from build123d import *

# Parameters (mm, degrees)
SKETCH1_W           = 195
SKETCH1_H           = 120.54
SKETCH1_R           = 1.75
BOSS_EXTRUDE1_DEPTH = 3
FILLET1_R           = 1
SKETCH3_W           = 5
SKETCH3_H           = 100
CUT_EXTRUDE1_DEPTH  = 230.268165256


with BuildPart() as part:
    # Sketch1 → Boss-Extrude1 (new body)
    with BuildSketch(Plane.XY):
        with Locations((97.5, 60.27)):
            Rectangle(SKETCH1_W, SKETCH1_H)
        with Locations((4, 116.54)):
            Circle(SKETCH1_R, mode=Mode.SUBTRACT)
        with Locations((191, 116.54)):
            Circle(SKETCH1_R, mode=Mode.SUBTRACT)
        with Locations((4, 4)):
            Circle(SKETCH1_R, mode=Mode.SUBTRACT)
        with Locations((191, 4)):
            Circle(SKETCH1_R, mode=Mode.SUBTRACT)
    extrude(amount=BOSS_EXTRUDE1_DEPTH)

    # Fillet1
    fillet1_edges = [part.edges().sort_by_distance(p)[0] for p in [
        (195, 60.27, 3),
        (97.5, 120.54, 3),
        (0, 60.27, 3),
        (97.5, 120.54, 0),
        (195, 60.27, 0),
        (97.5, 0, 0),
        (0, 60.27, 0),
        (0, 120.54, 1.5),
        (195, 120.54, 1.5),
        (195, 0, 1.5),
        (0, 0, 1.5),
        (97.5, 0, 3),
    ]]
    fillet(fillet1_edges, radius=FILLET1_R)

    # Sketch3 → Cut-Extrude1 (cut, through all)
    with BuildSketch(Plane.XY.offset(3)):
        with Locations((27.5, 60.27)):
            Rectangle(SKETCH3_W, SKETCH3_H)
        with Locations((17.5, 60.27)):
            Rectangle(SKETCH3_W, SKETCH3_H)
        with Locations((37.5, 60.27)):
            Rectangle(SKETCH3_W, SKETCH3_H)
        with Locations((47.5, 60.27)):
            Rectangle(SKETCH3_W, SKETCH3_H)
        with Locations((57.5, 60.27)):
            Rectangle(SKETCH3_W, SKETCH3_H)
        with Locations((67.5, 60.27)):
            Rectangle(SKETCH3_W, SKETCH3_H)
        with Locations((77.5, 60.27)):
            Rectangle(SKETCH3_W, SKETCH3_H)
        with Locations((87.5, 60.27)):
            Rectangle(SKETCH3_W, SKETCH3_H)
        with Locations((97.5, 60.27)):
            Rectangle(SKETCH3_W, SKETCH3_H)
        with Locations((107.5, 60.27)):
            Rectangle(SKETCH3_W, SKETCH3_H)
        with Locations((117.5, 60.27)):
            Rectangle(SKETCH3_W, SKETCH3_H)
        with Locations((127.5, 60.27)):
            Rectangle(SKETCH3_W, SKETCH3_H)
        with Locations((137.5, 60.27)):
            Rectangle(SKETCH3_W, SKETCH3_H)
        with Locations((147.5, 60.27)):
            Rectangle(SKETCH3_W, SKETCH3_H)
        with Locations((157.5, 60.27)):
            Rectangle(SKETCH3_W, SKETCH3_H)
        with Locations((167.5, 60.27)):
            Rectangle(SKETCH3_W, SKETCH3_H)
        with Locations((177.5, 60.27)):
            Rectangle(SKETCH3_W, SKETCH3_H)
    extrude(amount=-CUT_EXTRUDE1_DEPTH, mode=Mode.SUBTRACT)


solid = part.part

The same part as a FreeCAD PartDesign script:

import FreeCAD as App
import Part
import Sketcher

V = App.Vector


def edges_at(feature, points):
    """Names of the edges that pass closest to the given points."""
    edges = feature.Shape.Edges
    near = lambda p: min(range(len(edges)), key=lambda i: edges[i].distToShape(Part.Vertex(*p))[0])
    return sorted({f"Edge{near(p) + 1}" for p in points})


def add_polygon(sketch, points):
    """Adds a closed chain of lines whose ends are joined by coincident constraints."""
    first, n = sketch.GeometryCount, len(points)
    for a, b in zip(points, points[1:] + points[:1]):
        sketch.addGeometry(Part.LineSegment(App.Vector(*a, 0), App.Vector(*b, 0)), False)
    for i in range(n):
        sketch.addConstraint(Sketcher.Constraint("Coincident", first + i, 2, first + (i + 1) % n, 1))

doc = App.newDocument("Part")
body = doc.addObject("PartDesign::Body", "Body")

sketch1 = body.newObject("Sketcher::SketchObject", "Sketch")
sketch1.AttachmentSupport = (doc.getObject("XY_Plane"), [""])
sketch1.MapMode = "FlatFace"
add_polygon(sketch1, [(0, 120.5), (0, 0), (195, 0), (195, 120.5)])
sketch1.addGeometry(Part.Circle(V(4, 4, 0), V(0, 0, 1), 1.8), False)
sketch1.addGeometry(Part.Circle(V(191, 4, 0), V(0, 0, 1), 1.8), False)
sketch1.addGeometry(Part.Circle(V(4, 116.5, 0), V(0, 0, 1), 1.8), False)
sketch1.addGeometry(Part.Circle(V(191, 116.5, 0), V(0, 0, 1), 1.8), False)
sketch1.addConstraint(Sketcher.Constraint("Vertical", 0))
sketch1.addConstraint(Sketcher.Constraint("Horizontal", 1))
sketch1.addConstraint(Sketcher.Constraint("Vertical", 2))
sketch1.addConstraint(Sketcher.Constraint("Horizontal", 3))
sketch1.addConstraint(Sketcher.Constraint("Coincident", 0, 2, -1, 1))
sketch1.addConstraint(Sketcher.Constraint("Equal", 4, 5))
sketch1.addConstraint(Sketcher.Constraint("Equal", 5, 6))
sketch1.addConstraint(Sketcher.Constraint("Equal", 6, 7))
sketch1.addConstraint(Sketcher.Constraint("Horizontal", 4, 3, 5, 3))
sketch1.addConstraint(Sketcher.Constraint("Horizontal", 6, 3, 7, 3))
sketch1.addConstraint(Sketcher.Constraint("Vertical", 4, 3, 6, 3))
sketch1.addConstraint(Sketcher.Constraint("Vertical", 5, 3, 7, 3))
sketch1.addConstraint(Sketcher.Constraint("Diameter", 4, 3.5))
sketch1.addConstraint(Sketcher.Constraint("DistanceX", 1, 1, 1, 2, 195.0))
sketch1.addConstraint(Sketcher.Constraint("DistanceX", -1, 1, 4, 3, 4.0))
sketch1.addConstraint(Sketcher.Constraint("DistanceY", -1, 1, 4, 3, 4.0))
sketch1.addConstraint(Sketcher.Constraint("DistanceX", -1, 1, 5, 3, 191.0))
sketch1.addConstraint(Sketcher.Constraint("DistanceY", 7, 3, 2, 2, 4.0))
sketch1.addConstraint(Sketcher.Constraint("DistanceY", 0, 2, 0, 1, 120.54))
pad1 = body.newObject("PartDesign::Pad", "Pad")
pad1.Profile = sketch1
pad1.Length = 3
doc.recompute()

fillet = body.newObject("PartDesign::Fillet", "Fillet")
fillet.Base = (pad1, edges_at(pad1, [
    (195, 60.27, 3),
    (97.5, 120.54, 3),
    (0, 60.27, 3),
    (97.5, 120.54, 0),
    (195, 60.27, 0),
    (97.5, 0, 0),
    (0, 60.27, 0),
    (0, 120.54, 1.5),
    (195, 120.54, 1.5),
    (195, 0, 1.5),
    (0, 0, 1.5),
    (97.5, 0, 3),
]))
fillet.Radius = 1

sketch2 = body.newObject("Sketcher::SketchObject", "Sketch001")
sketch2.AttachmentSupport = (doc.getObject("XY_Plane"), [""])
sketch2.MapMode = "FlatFace"
sketch2.AttachmentOffset = App.Placement(V(0, 0, 3), App.Rotation())
add_polygon(sketch2, [(25, 110), (25, 10), (30, 10), (30, 110)])
add_polygon(sketch2, [(15, 110), (15, 10), (20, 10), (20, 110)])
add_polygon(sketch2, [(35, 110), (35, 10), (40, 10), (40, 110)])
add_polygon(sketch2, [(45, 110), (45, 10), (50, 10), (50, 110)])
add_polygon(sketch2, [(55, 110), (55, 10), (60, 10), (60, 110)])
add_polygon(sketch2, [(65, 110), (65, 10), (70, 10), (70, 110)])
add_polygon(sketch2, [(75, 110), (75, 10), (80, 10), (80, 110)])
add_polygon(sketch2, [(85, 110), (85, 10), (90, 10), (90, 110)])
add_polygon(sketch2, [(95, 110), (95, 10), (100, 10), (100, 110)])
add_polygon(sketch2, [(105, 110), (105, 10), (110, 10), (110, 110)])
add_polygon(sketch2, [(115, 110), (115, 10), (120, 10), (120, 110)])
add_polygon(sketch2, [(125, 110), (125, 10), (130, 10), (130, 110)])
add_polygon(sketch2, [(135, 110), (135, 10), (140, 10), (140, 110)])
add_polygon(sketch2, [(145, 110), (145, 10), (150, 10), (150, 110)])
add_polygon(sketch2, [(155, 110), (155, 10), (160, 10), (160, 110)])
add_polygon(sketch2, [(165, 110), (165, 10), (170, 10), (170, 110)])
add_polygon(sketch2, [(175, 110), (175, 10), (180, 10), (180, 110)])
sketch2.addConstraint(Sketcher.Constraint("Vertical", 0))
sketch2.addConstraint(Sketcher.Constraint("Horizontal", 1))
sketch2.addConstraint(Sketcher.Constraint("Vertical", 2))
sketch2.addConstraint(Sketcher.Constraint("Horizontal", 3))
sketch2.addConstraint(Sketcher.Constraint("Vertical", 4))
sketch2.addConstraint(Sketcher.Constraint("Horizontal", 5))
sketch2.addConstraint(Sketcher.Constraint("Vertical", 6))
sketch2.addConstraint(Sketcher.Constraint("Horizontal", 7))
sketch2.addConstraint(Sketcher.Constraint("Vertical", 8))
sketch2.addConstraint(Sketcher.Constraint("Horizontal", 9))
sketch2.addConstraint(Sketcher.Constraint("Vertical", 10))
sketch2.addConstraint(Sketcher.Constraint("Horizontal", 11))
sketch2.addConstraint(Sketcher.Constraint("Vertical", 12))
sketch2.addConstraint(Sketcher.Constraint("Horizontal", 13))
sketch2.addConstraint(Sketcher.Constraint("Vertical", 14))
sketch2.addConstraint(Sketcher.Constraint("Horizontal", 15))
sketch2.addConstraint(Sketcher.Constraint("Vertical", 16))
sketch2.addConstraint(Sketcher.Constraint("Horizontal", 17))
sketch2.addConstraint(Sketcher.Constraint("Vertical", 18))
sketch2.addConstraint(Sketcher.Constraint("Horizontal", 19))
sketch2.addConstraint(Sketcher.Constraint("Vertical", 20))
sketch2.addConstraint(Sketcher.Constraint("Horizontal", 21))
sketch2.addConstraint(Sketcher.Constraint("Vertical", 22))
sketch2.addConstraint(Sketcher.Constraint("Horizontal", 23))
sketch2.addConstraint(Sketcher.Constraint("Vertical", 24))
sketch2.addConstraint(Sketcher.Constraint("Horizontal", 25))
sketch2.addConstraint(Sketcher.Constraint("Vertical", 26))
sketch2.addConstraint(Sketcher.Constraint("Horizontal", 27))
sketch2.addConstraint(Sketcher.Constraint("Vertical", 28))
sketch2.addConstraint(Sketcher.Constraint("Horizontal", 29))
sketch2.addConstraint(Sketcher.Constraint("Vertical", 30))
sketch2.addConstraint(Sketcher.Constraint("Horizontal", 31))
sketch2.addConstraint(Sketcher.Constraint("Vertical", 32))
sketch2.addConstraint(Sketcher.Constraint("Horizontal", 33))
sketch2.addConstraint(Sketcher.Constraint("Vertical", 34))
sketch2.addConstraint(Sketcher.Constraint("Horizontal", 35))
sketch2.addConstraint(Sketcher.Constraint("Vertical", 36))
sketch2.addConstraint(Sketcher.Constraint("Horizontal", 37))
sketch2.addConstraint(Sketcher.Constraint("Vertical", 38))
sketch2.addConstraint(Sketcher.Constraint("Horizontal", 39))
sketch2.addConstraint(Sketcher.Constraint("Vertical", 40))
sketch2.addConstraint(Sketcher.Constraint("Horizontal", 41))
sketch2.addConstraint(Sketcher.Constraint("Vertical", 42))
sketch2.addConstraint(Sketcher.Constraint("Horizontal", 43))
sketch2.addConstraint(Sketcher.Constraint("Vertical", 44))
sketch2.addConstraint(Sketcher.Constraint("Horizontal", 45))
sketch2.addConstraint(Sketcher.Constraint("Vertical", 46))
sketch2.addConstraint(Sketcher.Constraint("Horizontal", 47))
sketch2.addConstraint(Sketcher.Constraint("Vertical", 48))
sketch2.addConstraint(Sketcher.Constraint("Horizontal", 49))
sketch2.addConstraint(Sketcher.Constraint("Vertical", 50))
sketch2.addConstraint(Sketcher.Constraint("Horizontal", 51))
sketch2.addConstraint(Sketcher.Constraint("Vertical", 52))
sketch2.addConstraint(Sketcher.Constraint("Horizontal", 53))
sketch2.addConstraint(Sketcher.Constraint("Vertical", 54))
sketch2.addConstraint(Sketcher.Constraint("Horizontal", 55))
sketch2.addConstraint(Sketcher.Constraint("Vertical", 56))
sketch2.addConstraint(Sketcher.Constraint("Horizontal", 57))
sketch2.addConstraint(Sketcher.Constraint("Vertical", 58))
sketch2.addConstraint(Sketcher.Constraint("Horizontal", 59))
sketch2.addConstraint(Sketcher.Constraint("Vertical", 60))
sketch2.addConstraint(Sketcher.Constraint("Horizontal", 61))
sketch2.addConstraint(Sketcher.Constraint("Vertical", 62))
sketch2.addConstraint(Sketcher.Constraint("Horizontal", 63))
sketch2.addConstraint(Sketcher.Constraint("Vertical", 64))
sketch2.addConstraint(Sketcher.Constraint("Horizontal", 65))
sketch2.addConstraint(Sketcher.Constraint("Vertical", 66))
sketch2.addConstraint(Sketcher.Constraint("Horizontal", 67))
sketch2.addConstraint(Sketcher.Constraint("Horizontal", 1, 2, 4, 2))
sketch2.addConstraint(Sketcher.Constraint("Horizontal", 3, 2, 6, 2))
sketch2.addConstraint(Sketcher.Constraint("Horizontal", 5, 2, 8, 2))
sketch2.addConstraint(Sketcher.Constraint("Horizontal", 7, 2, 10, 2))
sketch2.addConstraint(Sketcher.Constraint("Horizontal", 9, 2, 12, 2))
sketch2.addConstraint(Sketcher.Constraint("Horizontal", 11, 2, 14, 2))
sketch2.addConstraint(Sketcher.Constraint("Horizontal", 13, 2, 16, 2))
sketch2.addConstraint(Sketcher.Constraint("Horizontal", 15, 2, 18, 2))
sketch2.addConstraint(Sketcher.Constraint("Horizontal", 17, 2, 20, 2))
sketch2.addConstraint(Sketcher.Constraint("Horizontal", 19, 2, 22, 2))
sketch2.addConstraint(Sketcher.Constraint("Horizontal", 21, 2, 24, 2))
sketch2.addConstraint(Sketcher.Constraint("Horizontal", 23, 2, 26, 2))
sketch2.addConstraint(Sketcher.Constraint("Horizontal", 25, 2, 28, 2))
sketch2.addConstraint(Sketcher.Constraint("Horizontal", 27, 2, 30, 2))
sketch2.addConstraint(Sketcher.Constraint("Horizontal", 29, 2, 32, 2))
sketch2.addConstraint(Sketcher.Constraint("Horizontal", 31, 2, 34, 2))
sketch2.addConstraint(Sketcher.Constraint("Horizontal", 33, 2, 36, 2))
sketch2.addConstraint(Sketcher.Constraint("Horizontal", 35, 2, 38, 2))
sketch2.addConstraint(Sketcher.Constraint("Horizontal", 37, 2, 40, 2))
sketch2.addConstraint(Sketcher.Constraint("Horizontal", 39, 2, 42, 2))
sketch2.addConstraint(Sketcher.Constraint("Horizontal", 41, 2, 44, 2))
sketch2.addConstraint(Sketcher.Constraint("Horizontal", 43, 2, 46, 2))
sketch2.addConstraint(Sketcher.Constraint("Horizontal", 45, 2, 48, 2))
sketch2.addConstraint(Sketcher.Constraint("Horizontal", 47, 2, 50, 2))
sketch2.addConstraint(Sketcher.Constraint("Horizontal", 49, 2, 52, 2))
sketch2.addConstraint(Sketcher.Constraint("Horizontal", 51, 2, 54, 2))
sketch2.addConstraint(Sketcher.Constraint("Horizontal", 53, 2, 56, 2))
sketch2.addConstraint(Sketcher.Constraint("Horizontal", 55, 2, 58, 2))
sketch2.addConstraint(Sketcher.Constraint("Horizontal", 57, 2, 60, 2))
sketch2.addConstraint(Sketcher.Constraint("Horizontal", 59, 2, 62, 2))
sketch2.addConstraint(Sketcher.Constraint("Horizontal", 61, 2, 64, 2))
sketch2.addConstraint(Sketcher.Constraint("Horizontal", 63, 2, 66, 2))
sketch2.addConstraint(Sketcher.Constraint("Equal", 3, 5))
sketch2.addConstraint(Sketcher.Constraint("Equal", 7, 9))
sketch2.addConstraint(Sketcher.Constraint("Equal", 11, 13))
sketch2.addConstraint(Sketcher.Constraint("Equal", 15, 17))
sketch2.addConstraint(Sketcher.Constraint("Equal", 19, 21))
sketch2.addConstraint(Sketcher.Constraint("Equal", 23, 25))
sketch2.addConstraint(Sketcher.Constraint("Equal", 27, 29))
sketch2.addConstraint(Sketcher.Constraint("Equal", 31, 33))
sketch2.addConstraint(Sketcher.Constraint("Equal", 35, 37))
sketch2.addConstraint(Sketcher.Constraint("Equal", 39, 41))
sketch2.addConstraint(Sketcher.Constraint("Equal", 43, 45))
sketch2.addConstraint(Sketcher.Constraint("Equal", 47, 49))
sketch2.addConstraint(Sketcher.Constraint("Equal", 51, 53))
sketch2.addConstraint(Sketcher.Constraint("Equal", 55, 57))
sketch2.addConstraint(Sketcher.Constraint("Equal", 59, 61))
sketch2.addConstraint(Sketcher.Constraint("Equal", 63, 65))
sketch2.addConstraint(Sketcher.Constraint("DistanceX", 1, 1, 1, 2, 5.0))
sketch2.addConstraint(Sketcher.Constraint("DistanceY", 0, 2, 0, 1, 100.0))
sketch2.addConstraint(Sketcher.Constraint("DistanceX", -1, 1, 0, 2, 25.0))
sketch2.addConstraint(Sketcher.Constraint("DistanceX", -1, 1, 4, 2, 15.0))
sketch2.addConstraint(Sketcher.Constraint("DistanceX", -1, 1, 8, 2, 35.0))
sketch2.addConstraint(Sketcher.Constraint("DistanceX", -1, 1, 12, 2, 45.0))
sketch2.addConstraint(Sketcher.Constraint("DistanceX", -1, 1, 16, 2, 55.0))
sketch2.addConstraint(Sketcher.Constraint("DistanceX", -1, 1, 20, 2, 65.0))
sketch2.addConstraint(Sketcher.Constraint("DistanceX", -1, 1, 24, 2, 75.0))
sketch2.addConstraint(Sketcher.Constraint("DistanceX", -1, 1, 28, 2, 85.0))
sketch2.addConstraint(Sketcher.Constraint("DistanceX", -1, 1, 32, 2, 95.0))
sketch2.addConstraint(Sketcher.Constraint("DistanceX", -1, 1, 36, 2, 105.0))
sketch2.addConstraint(Sketcher.Constraint("DistanceX", -1, 1, 40, 2, 115.0))
sketch2.addConstraint(Sketcher.Constraint("DistanceX", -1, 1, 44, 2, 125.0))
sketch2.addConstraint(Sketcher.Constraint("DistanceX", -1, 1, 48, 2, 135.0))
sketch2.addConstraint(Sketcher.Constraint("DistanceX", -1, 1, 52, 2, 145.0))
sketch2.addConstraint(Sketcher.Constraint("DistanceX", -1, 1, 56, 2, 155.0))
sketch2.addConstraint(Sketcher.Constraint("DistanceX", -1, 1, 60, 2, 165.0))
sketch2.addConstraint(Sketcher.Constraint("DistanceX", -1, 1, 64, 2, 175.0))
sketch2.addConstraint(Sketcher.Constraint("DistanceY", -1, 1, 0, 2, 10.27))
pocket1 = body.newObject("PartDesign::Pocket", "Pocket")
pocket1.Profile = sketch2
pocket1.Type = "ThroughAll"

doc.recompute()
